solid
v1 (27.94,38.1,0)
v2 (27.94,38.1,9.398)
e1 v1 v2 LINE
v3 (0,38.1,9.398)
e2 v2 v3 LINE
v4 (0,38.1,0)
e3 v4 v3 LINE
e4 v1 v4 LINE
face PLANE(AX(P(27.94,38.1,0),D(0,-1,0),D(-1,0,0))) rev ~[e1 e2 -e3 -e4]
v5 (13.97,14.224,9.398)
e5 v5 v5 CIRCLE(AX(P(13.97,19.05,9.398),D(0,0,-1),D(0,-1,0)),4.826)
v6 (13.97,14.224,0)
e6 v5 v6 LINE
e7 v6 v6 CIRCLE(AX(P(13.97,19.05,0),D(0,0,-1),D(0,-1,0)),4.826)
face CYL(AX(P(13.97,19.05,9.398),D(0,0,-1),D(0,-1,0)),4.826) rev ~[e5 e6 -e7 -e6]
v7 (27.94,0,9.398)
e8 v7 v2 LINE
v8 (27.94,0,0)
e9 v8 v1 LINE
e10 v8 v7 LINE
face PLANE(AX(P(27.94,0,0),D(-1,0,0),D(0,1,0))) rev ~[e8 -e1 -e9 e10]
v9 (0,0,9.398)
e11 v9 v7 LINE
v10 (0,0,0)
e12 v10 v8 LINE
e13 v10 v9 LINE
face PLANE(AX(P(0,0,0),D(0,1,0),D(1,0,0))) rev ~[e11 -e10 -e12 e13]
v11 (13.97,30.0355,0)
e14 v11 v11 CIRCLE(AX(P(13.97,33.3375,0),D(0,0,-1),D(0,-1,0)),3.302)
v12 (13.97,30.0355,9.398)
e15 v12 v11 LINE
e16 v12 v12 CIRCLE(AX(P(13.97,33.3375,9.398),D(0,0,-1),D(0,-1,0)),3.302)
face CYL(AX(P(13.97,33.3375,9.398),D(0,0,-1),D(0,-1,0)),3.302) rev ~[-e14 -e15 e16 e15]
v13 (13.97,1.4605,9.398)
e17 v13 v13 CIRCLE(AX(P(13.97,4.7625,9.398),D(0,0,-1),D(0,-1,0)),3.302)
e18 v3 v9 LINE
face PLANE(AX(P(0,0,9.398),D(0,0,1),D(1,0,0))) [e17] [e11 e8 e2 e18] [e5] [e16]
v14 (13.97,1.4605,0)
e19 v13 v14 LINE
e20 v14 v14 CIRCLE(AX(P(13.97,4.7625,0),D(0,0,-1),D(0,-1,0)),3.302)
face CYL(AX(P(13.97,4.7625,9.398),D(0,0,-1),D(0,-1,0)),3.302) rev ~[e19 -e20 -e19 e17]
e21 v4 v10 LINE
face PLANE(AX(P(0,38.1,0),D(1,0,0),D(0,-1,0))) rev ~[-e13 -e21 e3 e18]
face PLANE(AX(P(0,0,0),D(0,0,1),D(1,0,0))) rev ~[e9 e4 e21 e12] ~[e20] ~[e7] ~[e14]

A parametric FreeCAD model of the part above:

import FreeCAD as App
import Part
import Sketcher
Q = App.Units.Quantity

doc = App.newDocument("Part")
body = doc.addObject("PartDesign::Body", "Body")

sketch1 = doc.addObject("Sketcher::SketchObject", "Sketch")
body.addObject(sketch1)
sketch1.AttachmentSupport = (doc.XY_Plane, [""])
sketch1.MapMode = "FlatFace"
sketch1.addGeometry([
    Part.LineSegment(App.Vector(0, 38, 0), App.Vector(0, 0, 0)),
    Part.LineSegment(App.Vector(0, 0, 0), App.Vector(28, 0, 0)),
    Part.LineSegment(App.Vector(28, 0, 0), App.Vector(28, 38, 0)),
    Part.LineSegment(App.Vector(28, 38, 0), App.Vector(0, 38, 0)),
], False)
sketch1.addConstraint([
    Sketcher.Constraint("Coincident", 0, 2, 1, 1),
    Sketcher.Constraint("Coincident", 1, 2, 2, 1),
    Sketcher.Constraint("Coincident", 2, 2, 3, 1),
    Sketcher.Constraint("Coincident", 3, 2, 0, 1),
    Sketcher.Constraint("Vertical", 0),
    Sketcher.Constraint("Horizontal", 1),
    Sketcher.Constraint("Vertical", 2),
    Sketcher.Constraint("Horizontal", 3),
    Sketcher.Constraint("Coincident", 0, 2, -1, 1),
    Sketcher.Constraint("DistanceX", 1, 1, 1, 2, Q("1.1 in")),
    Sketcher.Constraint("DistanceY", 0, 2, 0, 1, Q("1.5 in")),
])
pad1 = doc.addObject("PartDesign::Pad", "Pad")
body.addObject(pad1)
pad1.Profile = sketch1
pad1.Length = Q("0.37 in")

sketch2 = doc.addObject("Sketcher::SketchObject", "Sketch001")
body.addObject(sketch2)
sketch2.AttachmentSupport = (doc.XY_Plane, [""])
sketch2.MapMode = "FlatFace"
sketch2.AttachmentOffset = App.Placement(App.Vector(0, 0, 0.37 * 25.4), App.Rotation())
sketch2.addGeometry([
    Part.Circle(App.Vector(14, 33.3, 0), App.Vector(0, 0, 1), 3.3),
    Part.Circle(App.Vector(14, 4.8, 0), App.Vector(0, 0, 1), 3.3),
], False)
sketch2.addConstraint([
    Sketcher.Constraint("Equal", 0, 1),
    Sketcher.Constraint("Vertical", 0, 3, 1, 3),
    Sketcher.Constraint("Diameter", 0, Q("0.26 in")),
    Sketcher.Constraint("DistanceX", -1, 1, 0, 3, Q("0.55 in")),
    Sketcher.Constraint("DistanceY", -1, 1, 0, 3, Q("1.3125 in")),
    Sketcher.Constraint("DistanceY", -1, 1, 1, 3, Q("0.1875 in")),
])
doc.recompute()
hole = doc.addObject("PartDesign::Hole", "Hole")
body.addObject(hole)
hole.Profile = sketch2
hole.ThreadType = "None"
hole.Diameter = Q("0.26 in")
hole.DepthType = "Dimension"
hole.Depth = Q("0.432 in")
hole.DrillPoint = "Angled"
hole.DrillPointAngle = 118

sketch3 = doc.addObject("Sketcher::SketchObject", "Sketch002")
body.addObject(sketch3)
sketch3.AttachmentSupport = (doc.XY_Plane, [""])
sketch3.MapMode = "FlatFace"
sketch3.AttachmentOffset = App.Placement(App.Vector(0, 0, 0.37 * 25.4), App.Rotation())
sketch3.addGeometry(Part.Circle(App.Vector(14, 19.1, 0), App.Vector(0, 0, 1), 4.8), False)
sketch3.addConstraint([
    Sketcher.Constraint("Diameter", 0, Q("0.38 in")),
    Sketcher.Constraint("DistanceX", -1, 1, 0, 3, Q("0.55 in")),
    Sketcher.Constraint("DistanceY", -1, 1, 0, 3, Q("0.75 in")),
])
doc.recompute()
hole2 = doc.addObject("PartDesign::Hole", "Hole001")
body.addObject(hole2)
hole2.Profile = sketch3
hole2.ThreadType = "None"
hole2.Diameter = Q("0.38 in")
hole2.DepthType = "Dimension"
hole2.Depth = Q("0.432 in")
hole2.DrillPoint = "Angled"
hole2.DrillPointAngle = 118

doc.recompute()
